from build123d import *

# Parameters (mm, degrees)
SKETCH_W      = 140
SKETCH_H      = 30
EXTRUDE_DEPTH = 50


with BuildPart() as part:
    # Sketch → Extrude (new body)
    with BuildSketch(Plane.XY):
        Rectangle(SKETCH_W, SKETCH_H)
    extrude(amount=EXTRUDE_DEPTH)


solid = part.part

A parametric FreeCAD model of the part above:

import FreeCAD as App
import Part
import Sketcher
from FreeCAD import Vector
Q = App.Units.Quantity


def add_polygon(sketch, points):
    """Adds a closed chain of lines whose ends are joined by coincident constraints."""
    first, n = sketch.GeometryCount, len(points)
    for a, b in zip(points, points[1:] + points[:1]):
        sketch.addGeometry(Part.LineSegment(App.Vector(*a, 0), App.Vector(*b, 0)), False)
    for i in range(n):
        sketch.addConstraint(Sketcher.Constraint("Coincident", first + i, 2, first + (i + 1) % n, 1))

doc = App.newDocument("Part")
body = doc.addObject("PartDesign::Body", "Body")

# Sketch on XY plane
sketch1 = body.newObject("Sketcher::SketchObject", "Sketch")
sketch1.AttachmentSupport = (doc.getObject("XY_Plane"), [""])
sketch1.MapMode = "FlatFace"
add_polygon(sketch1, [(-70, 15), (-70, -15), (70, -15), (70, 15)])  # lines 0-3
sketch1.addConstraint(Sketcher.Constraint("Vertical", 0))
sketch1.addConstraint(Sketcher.Constraint("Horizontal", 1))
sketch1.addConstraint(Sketcher.Constraint("Vertical", 2))
sketch1.addConstraint(Sketcher.Constraint("Horizontal", 3))
sketch1.addConstraint(Sketcher.Constraint("Symmetric", 0, 2, 2, 2, -1, 1))
sketch1.addConstraint(Sketcher.Constraint("DistanceX", 1, 1, 1, 2, Q("140 mm")))
sketch1.addConstraint(Sketcher.Constraint("DistanceY", 0, 2, 0, 1, Q("30 mm")))
pad1 = body.newObject("PartDesign::Pad", "Pad")
pad1.Profile = sketch1
pad1.Length = 50

doc.recompute()
